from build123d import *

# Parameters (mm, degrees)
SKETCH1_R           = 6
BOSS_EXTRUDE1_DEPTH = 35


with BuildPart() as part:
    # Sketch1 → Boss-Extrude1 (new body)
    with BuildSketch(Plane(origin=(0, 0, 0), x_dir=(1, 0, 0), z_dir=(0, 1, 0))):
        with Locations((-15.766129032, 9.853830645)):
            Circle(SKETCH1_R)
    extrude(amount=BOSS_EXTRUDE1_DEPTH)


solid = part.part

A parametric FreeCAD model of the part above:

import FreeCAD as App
import Part
import Sketcher

V = App.Vector

doc = App.newDocument("Part")
body = doc.addObject("PartDesign::Body", "Body")

# Sketch on XZ plane
sketch1 = body.newObject("Sketcher::SketchObject", "Sketch")
sketch1.AttachmentSupport = (doc.getObject("XZ_Plane"), [""])
sketch1.MapMode = "FlatFace"
sketch1.addGeometry(Part.Circle(V(-15.766129, -9.853831, 0), V(0, 0, 1), 6), False)
sketch1.addConstraint(Sketcher.Constraint("Diameter", 0, 12.0))
sketch1.addConstraint(Sketcher.Constraint("DistanceX", 0, 3, -1, 1, 15.766129))
sketch1.addConstraint(Sketcher.Constraint("DistanceY", 0, 3, -1, 1, 9.853831))
pad1 = body.newObject("PartDesign::Pad", "Pad")
pad1.Profile = sketch1
pad1.Length = 35
pad1.Reversed = True

doc.recompute()
